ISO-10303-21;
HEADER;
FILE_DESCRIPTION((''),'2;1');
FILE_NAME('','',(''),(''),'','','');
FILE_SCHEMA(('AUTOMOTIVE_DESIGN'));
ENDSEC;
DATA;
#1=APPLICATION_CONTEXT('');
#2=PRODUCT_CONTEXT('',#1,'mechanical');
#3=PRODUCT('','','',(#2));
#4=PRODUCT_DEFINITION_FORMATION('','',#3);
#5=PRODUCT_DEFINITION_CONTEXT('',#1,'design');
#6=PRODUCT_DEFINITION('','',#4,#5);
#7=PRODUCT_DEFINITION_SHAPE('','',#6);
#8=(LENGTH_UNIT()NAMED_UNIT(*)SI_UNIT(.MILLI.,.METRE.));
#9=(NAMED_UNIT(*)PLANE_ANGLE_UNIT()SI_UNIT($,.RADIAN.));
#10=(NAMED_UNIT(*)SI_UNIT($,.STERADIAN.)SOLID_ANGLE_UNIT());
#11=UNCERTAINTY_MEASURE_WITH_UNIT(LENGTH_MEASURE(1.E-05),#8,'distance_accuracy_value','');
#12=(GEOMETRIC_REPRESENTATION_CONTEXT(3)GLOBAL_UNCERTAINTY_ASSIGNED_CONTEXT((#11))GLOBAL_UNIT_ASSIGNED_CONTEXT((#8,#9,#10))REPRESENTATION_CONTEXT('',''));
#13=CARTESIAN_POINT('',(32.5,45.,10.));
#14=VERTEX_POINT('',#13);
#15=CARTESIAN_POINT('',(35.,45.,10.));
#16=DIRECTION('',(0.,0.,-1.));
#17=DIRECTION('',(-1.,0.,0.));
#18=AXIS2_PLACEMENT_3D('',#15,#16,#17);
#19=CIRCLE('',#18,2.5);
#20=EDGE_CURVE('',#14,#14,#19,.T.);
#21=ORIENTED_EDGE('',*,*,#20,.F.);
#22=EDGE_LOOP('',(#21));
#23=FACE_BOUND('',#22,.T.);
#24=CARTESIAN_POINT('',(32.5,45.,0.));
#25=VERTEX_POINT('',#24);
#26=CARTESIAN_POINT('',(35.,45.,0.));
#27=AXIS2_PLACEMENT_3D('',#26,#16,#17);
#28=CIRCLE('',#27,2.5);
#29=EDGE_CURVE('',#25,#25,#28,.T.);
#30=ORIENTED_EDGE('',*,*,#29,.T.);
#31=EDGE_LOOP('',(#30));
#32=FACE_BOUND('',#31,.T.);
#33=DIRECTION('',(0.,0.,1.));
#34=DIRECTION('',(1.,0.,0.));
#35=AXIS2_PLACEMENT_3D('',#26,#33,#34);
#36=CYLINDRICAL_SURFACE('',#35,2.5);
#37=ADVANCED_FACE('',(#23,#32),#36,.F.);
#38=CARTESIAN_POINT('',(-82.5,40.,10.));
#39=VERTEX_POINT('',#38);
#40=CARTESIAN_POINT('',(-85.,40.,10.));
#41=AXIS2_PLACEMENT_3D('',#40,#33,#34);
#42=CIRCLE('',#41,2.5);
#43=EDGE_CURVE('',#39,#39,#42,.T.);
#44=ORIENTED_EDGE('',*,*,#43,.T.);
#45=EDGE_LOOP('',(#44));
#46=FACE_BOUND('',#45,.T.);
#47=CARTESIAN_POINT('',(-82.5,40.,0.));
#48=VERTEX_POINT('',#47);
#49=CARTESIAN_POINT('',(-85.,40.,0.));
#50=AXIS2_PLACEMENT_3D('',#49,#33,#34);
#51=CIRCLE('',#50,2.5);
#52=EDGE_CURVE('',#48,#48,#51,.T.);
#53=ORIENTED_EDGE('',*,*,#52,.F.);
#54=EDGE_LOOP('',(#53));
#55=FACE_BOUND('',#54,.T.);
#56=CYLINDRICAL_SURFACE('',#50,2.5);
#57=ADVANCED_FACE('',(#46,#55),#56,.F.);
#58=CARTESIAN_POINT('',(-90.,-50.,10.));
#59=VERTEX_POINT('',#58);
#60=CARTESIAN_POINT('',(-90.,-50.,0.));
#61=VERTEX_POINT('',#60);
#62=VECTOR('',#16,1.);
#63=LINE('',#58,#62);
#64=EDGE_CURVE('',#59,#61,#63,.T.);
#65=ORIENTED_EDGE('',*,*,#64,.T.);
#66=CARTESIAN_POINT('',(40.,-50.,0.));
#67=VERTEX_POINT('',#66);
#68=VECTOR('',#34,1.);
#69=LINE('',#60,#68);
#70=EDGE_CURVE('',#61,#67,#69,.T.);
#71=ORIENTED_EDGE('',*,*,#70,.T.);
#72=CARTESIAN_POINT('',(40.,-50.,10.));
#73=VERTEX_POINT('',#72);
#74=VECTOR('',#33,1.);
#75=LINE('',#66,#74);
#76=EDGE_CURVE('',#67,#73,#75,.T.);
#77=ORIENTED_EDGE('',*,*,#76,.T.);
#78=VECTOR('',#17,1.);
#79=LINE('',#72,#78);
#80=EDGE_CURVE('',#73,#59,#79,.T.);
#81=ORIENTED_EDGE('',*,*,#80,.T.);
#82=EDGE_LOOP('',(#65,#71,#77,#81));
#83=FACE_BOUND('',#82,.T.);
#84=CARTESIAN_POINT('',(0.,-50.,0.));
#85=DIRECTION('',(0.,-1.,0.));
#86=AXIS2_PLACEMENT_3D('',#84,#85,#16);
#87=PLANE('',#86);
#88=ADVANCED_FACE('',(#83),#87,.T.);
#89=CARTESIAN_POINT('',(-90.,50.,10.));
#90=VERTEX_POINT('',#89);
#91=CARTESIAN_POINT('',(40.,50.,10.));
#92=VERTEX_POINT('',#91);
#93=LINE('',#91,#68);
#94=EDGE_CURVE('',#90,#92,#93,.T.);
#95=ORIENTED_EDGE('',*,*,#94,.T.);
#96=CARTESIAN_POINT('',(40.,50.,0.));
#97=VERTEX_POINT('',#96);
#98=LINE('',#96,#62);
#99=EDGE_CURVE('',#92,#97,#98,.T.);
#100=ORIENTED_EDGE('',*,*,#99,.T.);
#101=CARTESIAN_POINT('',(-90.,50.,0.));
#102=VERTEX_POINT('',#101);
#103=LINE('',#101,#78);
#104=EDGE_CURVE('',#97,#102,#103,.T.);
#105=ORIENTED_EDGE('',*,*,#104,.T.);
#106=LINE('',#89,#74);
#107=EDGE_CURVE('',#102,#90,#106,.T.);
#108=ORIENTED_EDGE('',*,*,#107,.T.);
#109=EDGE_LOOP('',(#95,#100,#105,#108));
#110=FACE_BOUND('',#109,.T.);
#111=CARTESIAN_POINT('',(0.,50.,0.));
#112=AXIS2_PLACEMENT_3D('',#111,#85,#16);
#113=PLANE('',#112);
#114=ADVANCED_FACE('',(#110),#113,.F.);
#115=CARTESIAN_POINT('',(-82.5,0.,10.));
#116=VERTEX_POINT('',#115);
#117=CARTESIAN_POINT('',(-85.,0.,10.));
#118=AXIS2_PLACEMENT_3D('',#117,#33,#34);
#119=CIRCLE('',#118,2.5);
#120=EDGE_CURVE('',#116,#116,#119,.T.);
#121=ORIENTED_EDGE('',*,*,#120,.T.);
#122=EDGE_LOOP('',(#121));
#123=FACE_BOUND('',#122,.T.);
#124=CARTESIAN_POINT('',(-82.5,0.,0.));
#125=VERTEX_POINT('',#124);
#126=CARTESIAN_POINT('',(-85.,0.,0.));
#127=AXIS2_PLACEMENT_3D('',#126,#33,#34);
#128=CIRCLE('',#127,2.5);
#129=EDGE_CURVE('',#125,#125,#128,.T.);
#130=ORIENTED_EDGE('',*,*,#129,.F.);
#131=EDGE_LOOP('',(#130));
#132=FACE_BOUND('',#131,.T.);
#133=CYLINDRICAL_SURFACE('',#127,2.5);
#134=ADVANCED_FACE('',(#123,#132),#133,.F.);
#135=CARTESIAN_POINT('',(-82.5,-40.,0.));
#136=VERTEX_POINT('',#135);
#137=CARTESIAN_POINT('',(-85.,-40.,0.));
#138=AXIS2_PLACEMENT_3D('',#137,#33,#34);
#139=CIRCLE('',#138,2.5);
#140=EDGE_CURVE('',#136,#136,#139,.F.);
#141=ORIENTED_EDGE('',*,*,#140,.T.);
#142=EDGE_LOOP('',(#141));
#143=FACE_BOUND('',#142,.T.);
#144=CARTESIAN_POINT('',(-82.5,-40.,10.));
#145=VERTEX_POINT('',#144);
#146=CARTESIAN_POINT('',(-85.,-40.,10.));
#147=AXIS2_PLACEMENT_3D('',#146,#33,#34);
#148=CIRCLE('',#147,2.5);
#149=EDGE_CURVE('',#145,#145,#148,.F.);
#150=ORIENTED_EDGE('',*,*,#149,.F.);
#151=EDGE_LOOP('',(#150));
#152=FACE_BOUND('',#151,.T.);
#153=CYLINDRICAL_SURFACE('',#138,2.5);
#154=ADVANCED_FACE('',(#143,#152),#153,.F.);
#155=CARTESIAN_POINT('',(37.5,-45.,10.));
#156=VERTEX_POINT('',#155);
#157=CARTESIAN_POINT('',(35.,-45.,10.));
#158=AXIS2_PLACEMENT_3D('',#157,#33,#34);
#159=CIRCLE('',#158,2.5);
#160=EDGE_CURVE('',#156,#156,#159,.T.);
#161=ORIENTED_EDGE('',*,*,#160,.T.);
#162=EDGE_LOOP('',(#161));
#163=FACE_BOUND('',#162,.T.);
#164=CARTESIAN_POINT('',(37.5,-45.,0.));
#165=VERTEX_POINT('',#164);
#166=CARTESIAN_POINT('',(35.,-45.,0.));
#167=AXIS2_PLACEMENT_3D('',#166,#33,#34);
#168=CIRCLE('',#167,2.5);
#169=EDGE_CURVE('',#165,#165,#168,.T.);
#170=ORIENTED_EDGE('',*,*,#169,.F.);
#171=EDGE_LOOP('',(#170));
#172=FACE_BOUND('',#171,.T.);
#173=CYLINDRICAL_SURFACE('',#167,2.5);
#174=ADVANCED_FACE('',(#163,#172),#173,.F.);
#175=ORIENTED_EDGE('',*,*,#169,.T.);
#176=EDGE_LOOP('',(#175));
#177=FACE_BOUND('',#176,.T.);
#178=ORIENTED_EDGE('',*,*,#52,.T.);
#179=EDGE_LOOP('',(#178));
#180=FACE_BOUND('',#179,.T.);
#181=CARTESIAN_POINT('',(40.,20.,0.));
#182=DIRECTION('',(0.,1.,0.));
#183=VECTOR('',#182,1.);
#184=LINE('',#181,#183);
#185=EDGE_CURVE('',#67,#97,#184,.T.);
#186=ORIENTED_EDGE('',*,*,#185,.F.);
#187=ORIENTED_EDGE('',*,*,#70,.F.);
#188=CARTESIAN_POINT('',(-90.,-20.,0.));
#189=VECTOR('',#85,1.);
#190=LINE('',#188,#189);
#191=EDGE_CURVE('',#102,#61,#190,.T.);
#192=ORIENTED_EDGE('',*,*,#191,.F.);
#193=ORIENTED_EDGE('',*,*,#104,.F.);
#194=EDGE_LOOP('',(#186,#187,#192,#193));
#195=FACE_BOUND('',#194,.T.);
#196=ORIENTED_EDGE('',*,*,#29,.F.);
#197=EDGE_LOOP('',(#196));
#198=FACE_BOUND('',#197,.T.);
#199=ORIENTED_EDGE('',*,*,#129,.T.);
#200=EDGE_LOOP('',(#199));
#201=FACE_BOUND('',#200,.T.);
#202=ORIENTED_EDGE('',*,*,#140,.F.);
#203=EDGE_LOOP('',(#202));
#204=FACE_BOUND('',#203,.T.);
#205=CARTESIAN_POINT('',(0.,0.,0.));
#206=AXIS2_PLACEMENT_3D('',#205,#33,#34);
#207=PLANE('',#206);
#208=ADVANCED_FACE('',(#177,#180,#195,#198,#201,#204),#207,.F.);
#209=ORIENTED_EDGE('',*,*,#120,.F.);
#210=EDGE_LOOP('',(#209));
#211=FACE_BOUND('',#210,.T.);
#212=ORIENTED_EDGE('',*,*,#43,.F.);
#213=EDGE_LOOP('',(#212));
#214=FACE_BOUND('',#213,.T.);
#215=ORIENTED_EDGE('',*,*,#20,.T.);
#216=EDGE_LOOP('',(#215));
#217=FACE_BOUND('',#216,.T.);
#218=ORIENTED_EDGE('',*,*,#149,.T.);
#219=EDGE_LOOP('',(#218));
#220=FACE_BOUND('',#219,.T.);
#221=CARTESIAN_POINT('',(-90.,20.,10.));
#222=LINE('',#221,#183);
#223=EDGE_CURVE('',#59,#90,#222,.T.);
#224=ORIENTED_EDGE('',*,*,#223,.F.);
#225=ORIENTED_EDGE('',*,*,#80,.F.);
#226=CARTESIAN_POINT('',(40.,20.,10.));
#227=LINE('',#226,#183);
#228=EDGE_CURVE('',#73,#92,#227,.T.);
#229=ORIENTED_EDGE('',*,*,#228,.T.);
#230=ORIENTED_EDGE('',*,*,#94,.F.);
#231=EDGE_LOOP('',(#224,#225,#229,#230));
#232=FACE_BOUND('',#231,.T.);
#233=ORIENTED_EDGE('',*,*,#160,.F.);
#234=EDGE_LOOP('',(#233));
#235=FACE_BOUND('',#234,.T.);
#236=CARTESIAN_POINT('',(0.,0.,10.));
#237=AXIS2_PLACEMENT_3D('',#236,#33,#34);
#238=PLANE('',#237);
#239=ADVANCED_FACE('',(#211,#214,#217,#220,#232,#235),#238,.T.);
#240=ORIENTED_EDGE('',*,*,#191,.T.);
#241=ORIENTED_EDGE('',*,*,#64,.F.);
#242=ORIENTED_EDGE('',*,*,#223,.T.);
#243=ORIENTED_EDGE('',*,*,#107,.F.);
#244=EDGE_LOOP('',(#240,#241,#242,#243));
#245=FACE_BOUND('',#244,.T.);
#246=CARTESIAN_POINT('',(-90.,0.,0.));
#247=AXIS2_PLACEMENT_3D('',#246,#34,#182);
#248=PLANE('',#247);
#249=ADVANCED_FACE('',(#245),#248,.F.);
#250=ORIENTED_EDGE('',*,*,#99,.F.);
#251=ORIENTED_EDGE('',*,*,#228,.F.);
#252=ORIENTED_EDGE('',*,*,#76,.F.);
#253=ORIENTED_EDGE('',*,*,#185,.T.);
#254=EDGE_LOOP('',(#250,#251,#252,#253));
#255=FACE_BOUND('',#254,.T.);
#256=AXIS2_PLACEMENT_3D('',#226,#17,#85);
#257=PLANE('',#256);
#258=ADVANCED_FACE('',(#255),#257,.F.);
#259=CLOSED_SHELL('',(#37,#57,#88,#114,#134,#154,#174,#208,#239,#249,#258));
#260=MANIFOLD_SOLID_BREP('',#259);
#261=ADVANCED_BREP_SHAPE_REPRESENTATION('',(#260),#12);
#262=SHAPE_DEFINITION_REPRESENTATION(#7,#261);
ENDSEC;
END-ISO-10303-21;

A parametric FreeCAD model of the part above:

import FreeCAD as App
import Part
import Sketcher
from FreeCAD import Vector
Q = App.Units.Quantity


def add_polygon(sketch, points):
    """Adds a closed chain of lines whose ends are joined by coincident constraints."""
    first, n = sketch.GeometryCount, len(points)
    for a, b in zip(points, points[1:] + points[:1]):
        sketch.addGeometry(Part.LineSegment(App.Vector(*a, 0), App.Vector(*b, 0)), False)
    for i in range(n):
        sketch.addConstraint(Sketcher.Constraint("Coincident", first + i, 2, first + (i + 1) % n, 1))

doc = App.newDocument("Part")
params = doc.addObject("Spreadsheet::Sheet", "Params")
for row, (alias, value) in enumerate([
    ("sketch1_width", "80 mm"),
    ("sketch1_height", "40 mm"),
    ("pad1_length", "10 mm"),
    ("sketch2_width", "40 mm"),
    ("sketch2_height", "10 mm"),
    ("pad2_length", "50 mm"),
    ("sketch3_diameter", "5 mm"),
    ("sketch4_width", "130 mm"),
    ("sketch4_height", "10 mm"),
    ("pad3_length", "30 mm"),
    ("sketch5_width", "130 mm"),
    ("sketch5_height", "10 mm"),
    ("pad4_length", "30 mm"),
    ("sketch6_diameter", "5 mm"),
    ("sketch7_diameter", "5 mm"),
], start=1):
    params.set(f"A{row}", alias)
    params.set(f"B{row}", "=" + value)
    params.setAlias(f"B{row}", alias)

body = doc.addObject("PartDesign::Body", "Body")

# Sketch on XY plane
sketch1 = doc.addObject("Sketcher::SketchObject", "Sketch")
body.addObject(sketch1)
sketch1.AttachmentSupport = (doc.XY_Plane, [""])
sketch1.MapMode = "FlatFace"
add_polygon(sketch1, [(-40, 20), (-40, -20), (40, -20), (40, 20)])  # lines 0-3
sketch1.addConstraint([
    Sketcher.Constraint("Vertical", 0),
    Sketcher.Constraint("Horizontal", 1),
    Sketcher.Constraint("Vertical", 2),
    Sketcher.Constraint("Horizontal", 3),
    Sketcher.Constraint("Symmetric", 0, 2, 2, 2, -1, 1),
    Sketcher.Constraint("DistanceX", 1, 1, 1, 2, Q("80 mm")),
    Sketcher.Constraint("DistanceY", 0, 2, 0, 1, Q("40 mm")),
])
sketch1.setExpression("Constraints[9]", "Params.sketch1_width")
sketch1.setExpression("Constraints[10]", "Params.sketch1_height")
pad1 = doc.addObject("PartDesign::Pad", "Pad")
body.addObject(pad1)
pad1.Profile = sketch1
pad1.setExpression("Length", "Params.pad1_length")

# Sketch on YZ plane
sketch2 = doc.addObject("Sketcher::SketchObject", "Sketch001")
body.addObject(sketch2)
sketch2.AttachmentSupport = (doc.YZ_Plane, [""])
sketch2.MapMode = "FlatFace"
sketch2.AttachmentOffset = App.Placement(Vector(0, 0, -40), App.Rotation())
add_polygon(sketch2, [(20, 0), (-20, 0), (-20, 10), (20, 10)])  # lines 0-3
sketch2.addConstraint([
    Sketcher.Constraint("Horizontal", 0),
    Sketcher.Constraint("Vertical", 1),
    Sketcher.Constraint("Horizontal", 2),
    Sketcher.Constraint("Vertical", 3),
    Sketcher.Constraint("Symmetric", 0, 2, 3, 2, -1, 1),
    Sketcher.Constraint("DistanceX", 0, 2, 0, 1, Q("40 mm")),
    Sketcher.Constraint("DistanceY", 1, 1, 1, 2, Q("10 mm")),
])
sketch2.setExpression("Constraints[9]", "Params.sketch2_width")
sketch2.setExpression("Constraints[10]", "Params.sketch2_height")
pad2 = doc.addObject("PartDesign::Pad", "Pad001")
body.addObject(pad2)
pad2.Profile = sketch2
pad2.setExpression("Length", "Params.pad2_length")
pad2.Reversed = True

# Sketch on XY plane
sketch3 = doc.addObject("Sketcher::SketchObject", "Sketch002")
body.addObject(sketch3)
sketch3.AttachmentSupport = (doc.XY_Plane, [""])
sketch3.MapMode = "FlatFace"
sketch3.AttachmentOffset = App.Placement(Vector(0, 0, 10), App.Rotation())
sketch3.addGeometry(Part.Circle(Vector(-85, 0, 0), Vector(0, 0, 1), 2.5), False)
sketch3.addConstraint([
    Sketcher.Constraint("PointOnObject", 0, 3, -1),
    Sketcher.Constraint("Diameter", 0, Q("5 mm")),
    Sketcher.Constraint("DistanceX", 0, 3, -1, 1, Q("85 mm")),
])
sketch3.setExpression("Constraints[1]", "Params.sketch3_diameter")
pocket1 = doc.addObject("PartDesign::Pocket", "Pocket")
body.addObject(pocket1)
pocket1.Profile = sketch3
pocket1.Type = "ThroughAll"

# Sketch on XZ plane
sketch4 = doc.addObject("Sketcher::SketchObject", "Sketch003")
body.addObject(sketch4)
sketch4.AttachmentSupport = (doc.XZ_Plane, [""])
sketch4.MapMode = "FlatFace"
sketch4.AttachmentOffset = App.Placement(Vector(0, 0, 20), App.Rotation())
add_polygon(sketch4, [(-90, 10), (-90, 0), (40, 0), (40, 10)])  # lines 0-3
sketch4.addConstraint([
    Sketcher.Constraint("Vertical", 0),
    Sketcher.Constraint("Horizontal", 1),
    Sketcher.Constraint("Vertical", 2),
    Sketcher.Constraint("Horizontal", 3),
    Sketcher.Constraint("PointOnObject", 0, 2, -1),
    Sketcher.Constraint("DistanceX", 1, 1, 1, 2, Q("130 mm")),
    Sketcher.Constraint("DistanceY", 0, 2, 0, 1, Q("10 mm")),
    Sketcher.Constraint("DistanceX", 0, 2, -1, 1, Q("90 mm")),
])
sketch4.setExpression("Constraints[9]", "Params.sketch4_width")
sketch4.setExpression("Constraints[10]", "Params.sketch4_height")
pad3 = doc.addObject("PartDesign::Pad", "Pad002")
body.addObject(pad3)
pad3.Profile = sketch4
pad3.setExpression("Length", "Params.pad3_length")

# Sketch on XZ plane
sketch5 = doc.addObject("Sketcher::SketchObject", "Sketch004")
body.addObject(sketch5)
sketch5.AttachmentSupport = (doc.XZ_Plane, [""])
sketch5.MapMode = "FlatFace"
sketch5.AttachmentOffset = App.Placement(Vector(0, 0, -20), App.Rotation())
add_polygon(sketch5, [(-90, 0), (-90, 10), (40, 10), (40, 0)])  # lines 0-3
sketch5.addConstraint([
    Sketcher.Constraint("Vertical", 0),
    Sketcher.Constraint("Horizontal", 1),
    Sketcher.Constraint("Vertical", 2),
    Sketcher.Constraint("Horizontal", 3),
    Sketcher.Constraint("PointOnObject", 2, 2, -1),
    Sketcher.Constraint("DistanceX", 1, 1, 1, 2, Q("130 mm")),
    Sketcher.Constraint("DistanceY", 0, 1, 0, 2, Q("10 mm")),
    Sketcher.Constraint("DistanceX", 0, 2, -1, 1, Q("90 mm")),
])
sketch5.setExpression("Constraints[9]", "Params.sketch5_width")
sketch5.setExpression("Constraints[10]", "Params.sketch5_height")
pad4 = doc.addObject("PartDesign::Pad", "Pad003")
body.addObject(pad4)
pad4.Profile = sketch5
pad4.setExpression("Length", "Params.pad4_length")
pad4.Reversed = True

# Sketch on XY plane
sketch6 = doc.addObject("Sketcher::SketchObject", "Sketch005")
body.addObject(sketch6)
sketch6.AttachmentSupport = (doc.XY_Plane, [""])
sketch6.MapMode = "FlatFace"
sketch6.AttachmentOffset = App.Placement(Vector(0, 0, 10), App.Rotation())
sketch6.addGeometry([
    Part.Circle(Vector(35, -45, 0), Vector(0, 0, 1), 2.5),
    Part.Circle(Vector(35, 45, 0), Vector(0, 0, 1), 2.5),
], False)
sketch6.addConstraint([
    Sketcher.Constraint("Equal", 0, 1),
    Sketcher.Constraint("Symmetric", 0, 3, 1, 3, -1),
    Sketcher.Constraint("Diameter", 0, Q("5 mm")),
    Sketcher.Constraint("DistanceX", -1, 1, 0, 3, Q("35 mm")),
    Sketcher.Constraint("DistanceY", 0, 3, -1, 1, Q("45 mm")),
])
sketch6.setExpression("Constraints[2]", "Params.sketch6_diameter")
pocket2 = doc.addObject("PartDesign::Pocket", "Pocket001")
body.addObject(pocket2)
pocket2.Profile = sketch6
pocket2.Type = "ThroughAll"

# Sketch on XY plane
sketch7 = doc.addObject("Sketcher::SketchObject", "Sketch006")
body.addObject(sketch7)
sketch7.AttachmentSupport = (doc.XY_Plane, [""])
sketch7.MapMode = "FlatFace"
sketch7.AttachmentOffset = App.Placement(Vector(0, 0, 10), App.Rotation())
sketch7.addGeometry([
    Part.Circle(Vector(-85, 40, 0), Vector(0, 0, 1), 2.5),
    Part.Circle(Vector(-85, -40, 0), Vector(0, 0, 1), 2.5),
], False)
sketch7.addConstraint([
    Sketcher.Constraint("Equal", 0, 1),
    Sketcher.Constraint("Symmetric", 0, 3, 1, 3, -1),
    Sketcher.Constraint("Diameter", 0, Q("5 mm")),
    Sketcher.Constraint("DistanceX", 0, 3, -1, 1, Q("85 mm")),
    Sketcher.Constraint("DistanceY", -1, 1, 0, 3, Q("40 mm")),
])
sketch7.setExpression("Constraints[2]", "Params.sketch7_diameter")
pocket3 = doc.addObject("PartDesign::Pocket", "Pocket002")
body.addObject(pocket3)
pocket3.Profile = sketch7
pocket3.Type = "ThroughAll"

doc.recompute()
